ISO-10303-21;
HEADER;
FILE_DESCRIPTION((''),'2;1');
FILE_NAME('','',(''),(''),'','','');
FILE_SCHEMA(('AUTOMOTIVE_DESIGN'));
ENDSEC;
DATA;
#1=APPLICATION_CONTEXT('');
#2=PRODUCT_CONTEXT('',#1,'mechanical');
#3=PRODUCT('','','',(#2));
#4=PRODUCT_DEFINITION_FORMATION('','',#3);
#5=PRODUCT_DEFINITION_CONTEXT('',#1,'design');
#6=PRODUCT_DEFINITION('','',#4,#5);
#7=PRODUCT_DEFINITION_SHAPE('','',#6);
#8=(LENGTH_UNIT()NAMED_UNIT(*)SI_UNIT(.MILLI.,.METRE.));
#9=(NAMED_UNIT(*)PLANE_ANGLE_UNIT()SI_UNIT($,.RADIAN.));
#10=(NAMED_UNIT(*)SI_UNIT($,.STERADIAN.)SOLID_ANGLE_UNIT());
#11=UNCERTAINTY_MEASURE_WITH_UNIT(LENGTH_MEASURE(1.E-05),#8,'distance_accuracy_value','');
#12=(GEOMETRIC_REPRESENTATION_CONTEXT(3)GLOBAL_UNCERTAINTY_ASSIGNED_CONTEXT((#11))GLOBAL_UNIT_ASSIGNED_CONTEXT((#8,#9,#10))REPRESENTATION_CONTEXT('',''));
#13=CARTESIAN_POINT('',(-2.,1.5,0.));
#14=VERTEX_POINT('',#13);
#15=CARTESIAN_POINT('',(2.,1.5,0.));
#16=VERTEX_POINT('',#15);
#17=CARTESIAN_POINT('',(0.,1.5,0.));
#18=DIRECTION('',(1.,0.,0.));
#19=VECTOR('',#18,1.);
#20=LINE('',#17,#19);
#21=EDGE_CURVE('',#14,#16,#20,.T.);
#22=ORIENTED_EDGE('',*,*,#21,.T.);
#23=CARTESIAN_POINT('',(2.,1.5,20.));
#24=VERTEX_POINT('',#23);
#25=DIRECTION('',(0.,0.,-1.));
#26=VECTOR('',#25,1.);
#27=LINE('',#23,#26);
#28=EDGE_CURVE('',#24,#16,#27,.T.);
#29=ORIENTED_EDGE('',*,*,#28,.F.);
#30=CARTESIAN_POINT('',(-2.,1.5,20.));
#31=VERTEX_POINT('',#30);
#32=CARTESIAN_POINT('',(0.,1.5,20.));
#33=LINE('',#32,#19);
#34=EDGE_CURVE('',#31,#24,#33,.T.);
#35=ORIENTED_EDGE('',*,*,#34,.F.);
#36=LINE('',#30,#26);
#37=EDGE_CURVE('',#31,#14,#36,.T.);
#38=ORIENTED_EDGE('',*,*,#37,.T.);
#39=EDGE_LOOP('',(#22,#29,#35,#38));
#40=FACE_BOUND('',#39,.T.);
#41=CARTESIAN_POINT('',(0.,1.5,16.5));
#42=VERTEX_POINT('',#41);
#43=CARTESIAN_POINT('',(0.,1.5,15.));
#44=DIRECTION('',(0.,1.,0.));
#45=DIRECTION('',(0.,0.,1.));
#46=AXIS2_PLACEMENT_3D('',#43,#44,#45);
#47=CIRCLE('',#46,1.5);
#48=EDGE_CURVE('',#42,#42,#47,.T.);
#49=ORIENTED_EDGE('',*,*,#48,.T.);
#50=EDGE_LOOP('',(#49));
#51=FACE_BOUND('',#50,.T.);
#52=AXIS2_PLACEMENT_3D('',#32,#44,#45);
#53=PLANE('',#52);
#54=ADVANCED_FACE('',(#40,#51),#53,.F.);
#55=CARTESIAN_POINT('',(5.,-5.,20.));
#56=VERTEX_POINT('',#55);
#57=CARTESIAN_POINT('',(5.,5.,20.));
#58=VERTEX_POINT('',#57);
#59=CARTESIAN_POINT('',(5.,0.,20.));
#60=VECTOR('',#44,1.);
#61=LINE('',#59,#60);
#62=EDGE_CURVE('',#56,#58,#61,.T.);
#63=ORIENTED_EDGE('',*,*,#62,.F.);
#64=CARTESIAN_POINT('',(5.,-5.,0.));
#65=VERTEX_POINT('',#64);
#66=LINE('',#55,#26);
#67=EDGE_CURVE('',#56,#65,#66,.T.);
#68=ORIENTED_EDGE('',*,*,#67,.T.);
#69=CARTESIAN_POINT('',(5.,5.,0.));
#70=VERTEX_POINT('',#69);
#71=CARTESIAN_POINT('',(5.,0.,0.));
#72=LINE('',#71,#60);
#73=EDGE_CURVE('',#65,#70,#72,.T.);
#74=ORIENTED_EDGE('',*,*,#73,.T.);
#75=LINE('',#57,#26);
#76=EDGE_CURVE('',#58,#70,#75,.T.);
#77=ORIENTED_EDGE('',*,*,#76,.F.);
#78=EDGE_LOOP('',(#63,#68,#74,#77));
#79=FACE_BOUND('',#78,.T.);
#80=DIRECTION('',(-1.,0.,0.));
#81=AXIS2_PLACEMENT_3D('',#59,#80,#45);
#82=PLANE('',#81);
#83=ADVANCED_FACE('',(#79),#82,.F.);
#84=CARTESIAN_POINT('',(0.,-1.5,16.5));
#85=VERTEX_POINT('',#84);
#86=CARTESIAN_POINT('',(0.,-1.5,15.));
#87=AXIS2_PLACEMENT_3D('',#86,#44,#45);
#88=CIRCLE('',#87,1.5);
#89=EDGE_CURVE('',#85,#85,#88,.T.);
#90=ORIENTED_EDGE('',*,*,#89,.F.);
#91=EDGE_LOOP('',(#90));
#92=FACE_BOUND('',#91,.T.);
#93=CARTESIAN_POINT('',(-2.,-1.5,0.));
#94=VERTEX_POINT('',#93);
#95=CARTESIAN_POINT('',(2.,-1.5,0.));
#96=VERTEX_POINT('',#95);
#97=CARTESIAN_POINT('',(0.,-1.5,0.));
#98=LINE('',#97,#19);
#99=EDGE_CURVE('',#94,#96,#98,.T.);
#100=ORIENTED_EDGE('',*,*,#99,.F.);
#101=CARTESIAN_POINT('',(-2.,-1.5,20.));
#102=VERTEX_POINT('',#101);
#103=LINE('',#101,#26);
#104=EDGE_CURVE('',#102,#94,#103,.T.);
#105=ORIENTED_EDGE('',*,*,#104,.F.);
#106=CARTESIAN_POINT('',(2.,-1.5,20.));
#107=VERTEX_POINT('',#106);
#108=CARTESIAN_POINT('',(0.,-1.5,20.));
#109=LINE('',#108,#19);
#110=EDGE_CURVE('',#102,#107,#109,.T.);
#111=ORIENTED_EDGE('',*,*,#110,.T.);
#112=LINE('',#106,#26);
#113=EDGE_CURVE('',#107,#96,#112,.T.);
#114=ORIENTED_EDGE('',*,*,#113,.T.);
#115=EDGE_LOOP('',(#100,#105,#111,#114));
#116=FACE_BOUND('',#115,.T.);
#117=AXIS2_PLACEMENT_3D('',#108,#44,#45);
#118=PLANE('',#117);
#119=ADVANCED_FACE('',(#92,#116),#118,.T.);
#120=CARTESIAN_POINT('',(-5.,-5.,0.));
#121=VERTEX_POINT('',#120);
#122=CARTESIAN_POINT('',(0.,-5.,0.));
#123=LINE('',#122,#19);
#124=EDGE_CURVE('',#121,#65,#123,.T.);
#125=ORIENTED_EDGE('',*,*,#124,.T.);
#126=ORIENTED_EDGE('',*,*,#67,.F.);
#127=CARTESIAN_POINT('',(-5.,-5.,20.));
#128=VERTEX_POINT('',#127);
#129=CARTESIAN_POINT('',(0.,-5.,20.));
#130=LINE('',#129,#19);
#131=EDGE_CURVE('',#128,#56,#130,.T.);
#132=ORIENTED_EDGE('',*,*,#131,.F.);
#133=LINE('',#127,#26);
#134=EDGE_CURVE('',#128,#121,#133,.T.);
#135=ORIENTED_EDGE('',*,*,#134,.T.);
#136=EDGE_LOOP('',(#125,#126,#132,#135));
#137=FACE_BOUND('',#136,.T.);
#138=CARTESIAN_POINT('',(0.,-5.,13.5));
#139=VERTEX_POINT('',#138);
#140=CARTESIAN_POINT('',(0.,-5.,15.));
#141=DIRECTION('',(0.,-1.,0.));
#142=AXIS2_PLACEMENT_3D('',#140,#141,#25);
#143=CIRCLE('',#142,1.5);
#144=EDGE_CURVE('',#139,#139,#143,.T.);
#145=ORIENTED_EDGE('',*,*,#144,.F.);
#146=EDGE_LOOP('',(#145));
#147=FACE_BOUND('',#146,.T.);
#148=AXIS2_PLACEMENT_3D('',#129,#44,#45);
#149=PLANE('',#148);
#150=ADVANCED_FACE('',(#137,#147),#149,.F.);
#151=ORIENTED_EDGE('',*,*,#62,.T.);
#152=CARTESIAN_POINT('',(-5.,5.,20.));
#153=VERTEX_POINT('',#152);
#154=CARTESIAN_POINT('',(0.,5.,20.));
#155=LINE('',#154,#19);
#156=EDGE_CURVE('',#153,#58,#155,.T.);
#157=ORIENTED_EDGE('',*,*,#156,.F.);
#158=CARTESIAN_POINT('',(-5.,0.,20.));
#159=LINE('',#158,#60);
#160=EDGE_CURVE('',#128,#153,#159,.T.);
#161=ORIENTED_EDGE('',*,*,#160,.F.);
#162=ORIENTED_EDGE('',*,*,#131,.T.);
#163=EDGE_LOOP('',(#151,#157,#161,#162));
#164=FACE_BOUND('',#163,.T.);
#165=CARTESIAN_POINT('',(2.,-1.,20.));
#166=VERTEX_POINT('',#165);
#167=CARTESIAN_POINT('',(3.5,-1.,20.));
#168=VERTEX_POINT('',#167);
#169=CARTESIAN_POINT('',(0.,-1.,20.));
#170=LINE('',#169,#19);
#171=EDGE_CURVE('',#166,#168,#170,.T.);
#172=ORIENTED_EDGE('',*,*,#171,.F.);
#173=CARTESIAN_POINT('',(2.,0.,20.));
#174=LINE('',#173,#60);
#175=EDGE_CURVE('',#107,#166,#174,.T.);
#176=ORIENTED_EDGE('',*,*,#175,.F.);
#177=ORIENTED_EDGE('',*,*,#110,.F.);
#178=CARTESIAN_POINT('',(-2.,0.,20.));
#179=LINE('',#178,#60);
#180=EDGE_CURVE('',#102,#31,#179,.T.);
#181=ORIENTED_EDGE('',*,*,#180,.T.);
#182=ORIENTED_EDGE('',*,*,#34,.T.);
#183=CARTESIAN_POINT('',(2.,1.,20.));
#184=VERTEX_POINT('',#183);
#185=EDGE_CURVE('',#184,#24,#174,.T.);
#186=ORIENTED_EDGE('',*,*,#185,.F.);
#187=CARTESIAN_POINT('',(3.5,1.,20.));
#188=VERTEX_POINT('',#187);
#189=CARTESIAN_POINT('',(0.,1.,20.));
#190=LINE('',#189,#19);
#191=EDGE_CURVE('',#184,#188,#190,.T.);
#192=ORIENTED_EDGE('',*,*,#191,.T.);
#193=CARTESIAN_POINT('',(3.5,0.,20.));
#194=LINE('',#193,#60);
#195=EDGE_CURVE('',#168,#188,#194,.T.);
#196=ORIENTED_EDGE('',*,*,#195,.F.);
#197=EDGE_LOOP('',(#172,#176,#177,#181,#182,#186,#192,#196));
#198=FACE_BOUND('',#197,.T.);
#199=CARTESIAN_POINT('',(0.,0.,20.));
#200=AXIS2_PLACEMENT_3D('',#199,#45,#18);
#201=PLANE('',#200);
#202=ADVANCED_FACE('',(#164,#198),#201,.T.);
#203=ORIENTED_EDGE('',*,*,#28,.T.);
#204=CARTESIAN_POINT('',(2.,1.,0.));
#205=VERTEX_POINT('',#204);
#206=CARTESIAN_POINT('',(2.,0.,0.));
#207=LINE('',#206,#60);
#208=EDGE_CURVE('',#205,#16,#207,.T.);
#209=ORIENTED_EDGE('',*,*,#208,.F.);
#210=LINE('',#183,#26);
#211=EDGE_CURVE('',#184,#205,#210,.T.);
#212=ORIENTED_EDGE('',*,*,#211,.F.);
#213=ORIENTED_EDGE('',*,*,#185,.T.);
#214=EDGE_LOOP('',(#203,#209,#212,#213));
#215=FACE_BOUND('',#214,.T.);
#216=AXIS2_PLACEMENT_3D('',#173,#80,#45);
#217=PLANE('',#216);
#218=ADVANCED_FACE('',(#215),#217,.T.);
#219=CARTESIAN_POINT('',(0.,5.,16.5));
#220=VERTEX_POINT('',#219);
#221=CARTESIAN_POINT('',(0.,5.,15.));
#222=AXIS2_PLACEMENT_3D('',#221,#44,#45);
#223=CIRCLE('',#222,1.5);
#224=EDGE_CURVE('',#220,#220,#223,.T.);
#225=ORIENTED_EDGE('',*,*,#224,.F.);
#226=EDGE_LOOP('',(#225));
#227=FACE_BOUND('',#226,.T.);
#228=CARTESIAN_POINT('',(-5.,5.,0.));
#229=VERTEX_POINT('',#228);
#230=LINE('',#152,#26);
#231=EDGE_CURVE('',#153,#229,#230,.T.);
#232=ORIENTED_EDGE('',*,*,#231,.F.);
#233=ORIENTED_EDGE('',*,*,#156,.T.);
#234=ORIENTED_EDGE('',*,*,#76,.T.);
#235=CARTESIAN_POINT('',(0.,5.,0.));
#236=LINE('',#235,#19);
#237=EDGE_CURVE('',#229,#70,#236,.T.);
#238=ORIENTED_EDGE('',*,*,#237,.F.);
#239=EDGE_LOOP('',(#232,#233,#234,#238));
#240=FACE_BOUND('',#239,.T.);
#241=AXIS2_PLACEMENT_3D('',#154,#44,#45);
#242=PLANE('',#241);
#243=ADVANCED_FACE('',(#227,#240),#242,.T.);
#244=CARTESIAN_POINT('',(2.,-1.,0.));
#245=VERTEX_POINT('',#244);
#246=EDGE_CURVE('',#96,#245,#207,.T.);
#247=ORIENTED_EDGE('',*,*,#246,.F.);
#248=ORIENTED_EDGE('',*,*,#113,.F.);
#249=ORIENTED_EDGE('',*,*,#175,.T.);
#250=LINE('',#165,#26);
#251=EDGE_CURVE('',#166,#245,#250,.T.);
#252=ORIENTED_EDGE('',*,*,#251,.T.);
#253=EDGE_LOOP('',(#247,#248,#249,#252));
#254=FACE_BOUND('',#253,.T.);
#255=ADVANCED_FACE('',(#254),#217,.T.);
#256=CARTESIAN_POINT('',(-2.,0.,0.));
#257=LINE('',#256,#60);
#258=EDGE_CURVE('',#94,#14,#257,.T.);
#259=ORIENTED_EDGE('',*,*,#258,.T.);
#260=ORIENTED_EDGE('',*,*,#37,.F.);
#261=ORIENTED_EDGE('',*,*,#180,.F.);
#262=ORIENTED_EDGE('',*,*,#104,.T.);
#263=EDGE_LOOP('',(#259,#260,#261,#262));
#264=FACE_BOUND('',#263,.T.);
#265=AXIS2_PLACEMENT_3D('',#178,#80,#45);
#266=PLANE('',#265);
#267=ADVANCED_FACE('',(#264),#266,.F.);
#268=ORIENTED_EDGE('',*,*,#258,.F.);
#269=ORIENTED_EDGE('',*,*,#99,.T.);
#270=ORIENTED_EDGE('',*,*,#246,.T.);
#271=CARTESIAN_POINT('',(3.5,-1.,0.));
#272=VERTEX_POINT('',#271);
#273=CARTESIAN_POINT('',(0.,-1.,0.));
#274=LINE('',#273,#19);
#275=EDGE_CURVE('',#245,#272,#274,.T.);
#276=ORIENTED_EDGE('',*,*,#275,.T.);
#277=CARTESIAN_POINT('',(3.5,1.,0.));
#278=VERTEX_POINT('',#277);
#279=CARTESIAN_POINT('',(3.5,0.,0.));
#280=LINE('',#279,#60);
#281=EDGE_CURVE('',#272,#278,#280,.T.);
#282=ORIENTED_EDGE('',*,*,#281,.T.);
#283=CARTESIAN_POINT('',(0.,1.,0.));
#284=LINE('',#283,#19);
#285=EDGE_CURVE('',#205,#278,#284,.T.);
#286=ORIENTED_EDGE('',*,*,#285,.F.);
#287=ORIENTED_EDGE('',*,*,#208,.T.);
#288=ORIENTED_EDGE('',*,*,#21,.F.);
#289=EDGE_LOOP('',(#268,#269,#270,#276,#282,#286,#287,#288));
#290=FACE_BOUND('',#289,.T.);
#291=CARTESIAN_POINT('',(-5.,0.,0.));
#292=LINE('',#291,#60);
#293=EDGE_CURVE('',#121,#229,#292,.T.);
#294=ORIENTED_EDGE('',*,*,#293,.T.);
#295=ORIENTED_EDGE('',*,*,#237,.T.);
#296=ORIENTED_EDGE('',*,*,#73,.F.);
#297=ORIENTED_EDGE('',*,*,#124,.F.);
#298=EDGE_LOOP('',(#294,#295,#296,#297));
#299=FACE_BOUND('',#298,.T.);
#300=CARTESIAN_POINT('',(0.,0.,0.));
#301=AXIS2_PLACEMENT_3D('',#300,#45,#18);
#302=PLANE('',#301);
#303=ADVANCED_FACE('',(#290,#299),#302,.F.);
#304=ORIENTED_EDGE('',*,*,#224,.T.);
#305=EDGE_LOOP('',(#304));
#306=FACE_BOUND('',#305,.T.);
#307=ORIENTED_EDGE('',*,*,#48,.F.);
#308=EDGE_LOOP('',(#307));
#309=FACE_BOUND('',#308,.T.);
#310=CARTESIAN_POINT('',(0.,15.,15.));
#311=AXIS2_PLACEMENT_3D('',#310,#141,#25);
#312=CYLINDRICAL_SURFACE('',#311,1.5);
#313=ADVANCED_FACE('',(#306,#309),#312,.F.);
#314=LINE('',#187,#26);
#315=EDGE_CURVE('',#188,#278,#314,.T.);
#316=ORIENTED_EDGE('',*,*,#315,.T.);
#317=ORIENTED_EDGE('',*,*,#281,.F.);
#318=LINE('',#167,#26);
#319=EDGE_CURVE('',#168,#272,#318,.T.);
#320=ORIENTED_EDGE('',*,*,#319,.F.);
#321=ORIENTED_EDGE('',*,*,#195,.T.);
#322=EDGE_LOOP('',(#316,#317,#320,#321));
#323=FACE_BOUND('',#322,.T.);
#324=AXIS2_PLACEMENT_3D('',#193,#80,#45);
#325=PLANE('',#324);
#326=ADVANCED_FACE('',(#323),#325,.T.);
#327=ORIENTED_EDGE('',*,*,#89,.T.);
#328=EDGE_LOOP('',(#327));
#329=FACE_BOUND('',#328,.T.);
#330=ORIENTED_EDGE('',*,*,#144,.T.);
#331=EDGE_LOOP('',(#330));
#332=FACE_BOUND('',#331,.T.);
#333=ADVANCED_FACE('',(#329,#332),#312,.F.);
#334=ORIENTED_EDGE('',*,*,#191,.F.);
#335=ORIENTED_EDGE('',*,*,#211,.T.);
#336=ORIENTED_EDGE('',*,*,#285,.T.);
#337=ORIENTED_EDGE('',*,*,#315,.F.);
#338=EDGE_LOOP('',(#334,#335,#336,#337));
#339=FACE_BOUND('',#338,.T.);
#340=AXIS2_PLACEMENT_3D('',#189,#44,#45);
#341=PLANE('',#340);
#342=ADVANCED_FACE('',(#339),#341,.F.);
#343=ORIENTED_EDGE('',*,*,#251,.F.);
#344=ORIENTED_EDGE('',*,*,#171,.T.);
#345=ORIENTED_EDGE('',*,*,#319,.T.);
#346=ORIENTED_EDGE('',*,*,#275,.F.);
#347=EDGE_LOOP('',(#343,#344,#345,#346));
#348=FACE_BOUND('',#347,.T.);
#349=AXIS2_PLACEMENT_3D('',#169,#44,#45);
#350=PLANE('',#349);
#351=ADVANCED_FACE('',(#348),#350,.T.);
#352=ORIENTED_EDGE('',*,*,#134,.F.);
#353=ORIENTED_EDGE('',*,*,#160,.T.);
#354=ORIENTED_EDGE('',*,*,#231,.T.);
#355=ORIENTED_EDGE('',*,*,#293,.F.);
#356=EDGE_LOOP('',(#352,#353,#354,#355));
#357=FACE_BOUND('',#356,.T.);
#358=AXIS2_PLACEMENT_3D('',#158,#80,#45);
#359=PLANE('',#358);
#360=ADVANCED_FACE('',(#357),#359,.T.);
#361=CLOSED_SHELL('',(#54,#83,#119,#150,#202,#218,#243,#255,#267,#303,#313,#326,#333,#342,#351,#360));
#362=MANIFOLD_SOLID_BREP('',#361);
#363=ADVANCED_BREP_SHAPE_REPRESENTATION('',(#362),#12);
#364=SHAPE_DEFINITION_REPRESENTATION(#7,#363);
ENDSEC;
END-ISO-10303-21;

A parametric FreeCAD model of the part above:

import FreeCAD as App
import Part
import Sketcher
Q = App.Units.Quantity

doc = App.newDocument("Part")
body = doc.addObject("PartDesign::Body", "Body")

# Sketch on XY plane
sketch1 = doc.addObject("Sketcher::SketchObject", "Sketch")
body.addObject(sketch1)
sketch1.AttachmentSupport = (doc.XY_Plane, [""])
sketch1.MapMode = "FlatFace"
sketch1.addGeometry(Part.LineSegment(App.Vector(-5, 5, 0), App.Vector(-5, -5, 0)), False)
sketch1.addGeometry(Part.LineSegment(App.Vector(-5, -5, 0), App.Vector(5, -5, 0)), False)
sketch1.addGeometry(Part.LineSegment(App.Vector(5, -5, 0), App.Vector(5, 5, 0)), False)
sketch1.addGeometry(Part.LineSegment(App.Vector(5, 5, 0), App.Vector(-5, 5, 0)), False)
sketch1.addGeometry(Part.LineSegment(App.Vector(2, -1, 0), App.Vector(2, -1.5, 0)), False)
sketch1.addGeometry(Part.LineSegment(App.Vector(2, -1.5, 0), App.Vector(-2, -1.5, 0)), False)
sketch1.addGeometry(Part.LineSegment(App.Vector(-2, -1.5, 0), App.Vector(-2, 1.5, 0)), False)
sketch1.addGeometry(Part.LineSegment(App.Vector(-2, 1.5, 0), App.Vector(2, 1.5, 0)), False)
sketch1.addGeometry(Part.LineSegment(App.Vector(2, 1.5, 0), App.Vector(2, 1, 0)), False)
sketch1.addGeometry(Part.LineSegment(App.Vector(2, 1, 0), App.Vector(3.5, 1, 0)), False)
sketch1.addGeometry(Part.LineSegment(App.Vector(3.5, 1, 0), App.Vector(3.5, -1, 0)), False)
sketch1.addGeometry(Part.LineSegment(App.Vector(3.5, -1, 0), App.Vector(2, -1, 0)), False)
sketch1.addConstraint(Sketcher.Constraint("Coincident", 0, 2, 1, 1))
sketch1.addConstraint(Sketcher.Constraint("Coincident", 1, 2, 2, 1))
sketch1.addConstraint(Sketcher.Constraint("Coincident", 2, 2, 3, 1))
sketch1.addConstraint(Sketcher.Constraint("Coincident", 3, 2, 0, 1))
sketch1.addConstraint(Sketcher.Constraint("Coincident", 4, 2, 5, 1))
sketch1.addConstraint(Sketcher.Constraint("Coincident", 5, 2, 6, 1))
sketch1.addConstraint(Sketcher.Constraint("Coincident", 6, 2, 7, 1))
sketch1.addConstraint(Sketcher.Constraint("Coincident", 7, 2, 8, 1))
sketch1.addConstraint(Sketcher.Constraint("Coincident", 8, 2, 9, 1))
sketch1.addConstraint(Sketcher.Constraint("Coincident", 9, 2, 10, 1))
sketch1.addConstraint(Sketcher.Constraint("Coincident", 10, 2, 11, 1))
sketch1.addConstraint(Sketcher.Constraint("Coincident", 11, 2, 4, 1))
sketch1.addConstraint(Sketcher.Constraint("Vertical", 0))
sketch1.addConstraint(Sketcher.Constraint("Horizontal", 1))
sketch1.addConstraint(Sketcher.Constraint("Vertical", 2))
sketch1.addConstraint(Sketcher.Constraint("Horizontal", 3))
sketch1.addConstraint(Sketcher.Constraint("Vertical", 4))
sketch1.addConstraint(Sketcher.Constraint("Horizontal", 5))
sketch1.addConstraint(Sketcher.Constraint("Vertical", 6))
sketch1.addConstraint(Sketcher.Constraint("Horizontal", 7))
sketch1.addConstraint(Sketcher.Constraint("Vertical", 8))
sketch1.addConstraint(Sketcher.Constraint("Horizontal", 9))
sketch1.addConstraint(Sketcher.Constraint("Vertical", 10))
sketch1.addConstraint(Sketcher.Constraint("Horizontal", 11))
sketch1.addConstraint(Sketcher.Constraint("Symmetric", 0, 2, 2, 2, -1, 1))
sketch1.addConstraint(Sketcher.Constraint("Symmetric", 4, 2, 6, 2, -1, 1))
sketch1.addConstraint(Sketcher.Constraint("Symmetric", 8, 2, 11, 2, -1))
sketch1.addConstraint(Sketcher.Constraint("Equal", 3, 0))
sketch1.addConstraint(Sketcher.Constraint("DistanceX", 1, 1, 1, 2, Q("10 mm")))
sketch1.addConstraint(Sketcher.Constraint("DistanceX", 5, 2, 5, 1, Q("4 mm")))
sketch1.addConstraint(Sketcher.Constraint("DistanceY", 6, 1, 6, 2, Q("3 mm")))
sketch1.addConstraint(Sketcher.Constraint("DistanceY", 10, 2, 10, 1, Q("2 mm")))
sketch1.addConstraint(Sketcher.Constraint("DistanceX", 9, 1, 9, 2, Q("1.5 mm")))
pad1 = doc.addObject("PartDesign::Pad", "Pad")
body.addObject(pad1)
pad1.Profile = sketch1
pad1.Length = 20

# Sketch on XZ plane
sketch2 = doc.addObject("Sketcher::SketchObject", "Sketch001")
body.addObject(sketch2)
sketch2.AttachmentSupport = (doc.XZ_Plane, [""])
sketch2.MapMode = "FlatFace"
sketch2.AttachmentOffset = App.Placement(App.Vector(0, 0, 5), App.Rotation())
sketch2.addGeometry(Part.Circle(App.Vector(0, 15, 0), App.Vector(0, 0, 1), 1.5), False)
sketch2.addConstraint(Sketcher.Constraint("PointOnObject", 0, 3, -2))
sketch2.addConstraint(Sketcher.Constraint("Diameter", 0, Q("3 mm")))
sketch2.addConstraint(Sketcher.Constraint("DistanceY", -1, 1, 0, 3, Q("15 mm")))
pocket1 = doc.addObject("PartDesign::Pocket", "Pocket")
body.addObject(pocket1)
pocket1.Profile = sketch2
pocket1.Length = 20

doc.recompute()
